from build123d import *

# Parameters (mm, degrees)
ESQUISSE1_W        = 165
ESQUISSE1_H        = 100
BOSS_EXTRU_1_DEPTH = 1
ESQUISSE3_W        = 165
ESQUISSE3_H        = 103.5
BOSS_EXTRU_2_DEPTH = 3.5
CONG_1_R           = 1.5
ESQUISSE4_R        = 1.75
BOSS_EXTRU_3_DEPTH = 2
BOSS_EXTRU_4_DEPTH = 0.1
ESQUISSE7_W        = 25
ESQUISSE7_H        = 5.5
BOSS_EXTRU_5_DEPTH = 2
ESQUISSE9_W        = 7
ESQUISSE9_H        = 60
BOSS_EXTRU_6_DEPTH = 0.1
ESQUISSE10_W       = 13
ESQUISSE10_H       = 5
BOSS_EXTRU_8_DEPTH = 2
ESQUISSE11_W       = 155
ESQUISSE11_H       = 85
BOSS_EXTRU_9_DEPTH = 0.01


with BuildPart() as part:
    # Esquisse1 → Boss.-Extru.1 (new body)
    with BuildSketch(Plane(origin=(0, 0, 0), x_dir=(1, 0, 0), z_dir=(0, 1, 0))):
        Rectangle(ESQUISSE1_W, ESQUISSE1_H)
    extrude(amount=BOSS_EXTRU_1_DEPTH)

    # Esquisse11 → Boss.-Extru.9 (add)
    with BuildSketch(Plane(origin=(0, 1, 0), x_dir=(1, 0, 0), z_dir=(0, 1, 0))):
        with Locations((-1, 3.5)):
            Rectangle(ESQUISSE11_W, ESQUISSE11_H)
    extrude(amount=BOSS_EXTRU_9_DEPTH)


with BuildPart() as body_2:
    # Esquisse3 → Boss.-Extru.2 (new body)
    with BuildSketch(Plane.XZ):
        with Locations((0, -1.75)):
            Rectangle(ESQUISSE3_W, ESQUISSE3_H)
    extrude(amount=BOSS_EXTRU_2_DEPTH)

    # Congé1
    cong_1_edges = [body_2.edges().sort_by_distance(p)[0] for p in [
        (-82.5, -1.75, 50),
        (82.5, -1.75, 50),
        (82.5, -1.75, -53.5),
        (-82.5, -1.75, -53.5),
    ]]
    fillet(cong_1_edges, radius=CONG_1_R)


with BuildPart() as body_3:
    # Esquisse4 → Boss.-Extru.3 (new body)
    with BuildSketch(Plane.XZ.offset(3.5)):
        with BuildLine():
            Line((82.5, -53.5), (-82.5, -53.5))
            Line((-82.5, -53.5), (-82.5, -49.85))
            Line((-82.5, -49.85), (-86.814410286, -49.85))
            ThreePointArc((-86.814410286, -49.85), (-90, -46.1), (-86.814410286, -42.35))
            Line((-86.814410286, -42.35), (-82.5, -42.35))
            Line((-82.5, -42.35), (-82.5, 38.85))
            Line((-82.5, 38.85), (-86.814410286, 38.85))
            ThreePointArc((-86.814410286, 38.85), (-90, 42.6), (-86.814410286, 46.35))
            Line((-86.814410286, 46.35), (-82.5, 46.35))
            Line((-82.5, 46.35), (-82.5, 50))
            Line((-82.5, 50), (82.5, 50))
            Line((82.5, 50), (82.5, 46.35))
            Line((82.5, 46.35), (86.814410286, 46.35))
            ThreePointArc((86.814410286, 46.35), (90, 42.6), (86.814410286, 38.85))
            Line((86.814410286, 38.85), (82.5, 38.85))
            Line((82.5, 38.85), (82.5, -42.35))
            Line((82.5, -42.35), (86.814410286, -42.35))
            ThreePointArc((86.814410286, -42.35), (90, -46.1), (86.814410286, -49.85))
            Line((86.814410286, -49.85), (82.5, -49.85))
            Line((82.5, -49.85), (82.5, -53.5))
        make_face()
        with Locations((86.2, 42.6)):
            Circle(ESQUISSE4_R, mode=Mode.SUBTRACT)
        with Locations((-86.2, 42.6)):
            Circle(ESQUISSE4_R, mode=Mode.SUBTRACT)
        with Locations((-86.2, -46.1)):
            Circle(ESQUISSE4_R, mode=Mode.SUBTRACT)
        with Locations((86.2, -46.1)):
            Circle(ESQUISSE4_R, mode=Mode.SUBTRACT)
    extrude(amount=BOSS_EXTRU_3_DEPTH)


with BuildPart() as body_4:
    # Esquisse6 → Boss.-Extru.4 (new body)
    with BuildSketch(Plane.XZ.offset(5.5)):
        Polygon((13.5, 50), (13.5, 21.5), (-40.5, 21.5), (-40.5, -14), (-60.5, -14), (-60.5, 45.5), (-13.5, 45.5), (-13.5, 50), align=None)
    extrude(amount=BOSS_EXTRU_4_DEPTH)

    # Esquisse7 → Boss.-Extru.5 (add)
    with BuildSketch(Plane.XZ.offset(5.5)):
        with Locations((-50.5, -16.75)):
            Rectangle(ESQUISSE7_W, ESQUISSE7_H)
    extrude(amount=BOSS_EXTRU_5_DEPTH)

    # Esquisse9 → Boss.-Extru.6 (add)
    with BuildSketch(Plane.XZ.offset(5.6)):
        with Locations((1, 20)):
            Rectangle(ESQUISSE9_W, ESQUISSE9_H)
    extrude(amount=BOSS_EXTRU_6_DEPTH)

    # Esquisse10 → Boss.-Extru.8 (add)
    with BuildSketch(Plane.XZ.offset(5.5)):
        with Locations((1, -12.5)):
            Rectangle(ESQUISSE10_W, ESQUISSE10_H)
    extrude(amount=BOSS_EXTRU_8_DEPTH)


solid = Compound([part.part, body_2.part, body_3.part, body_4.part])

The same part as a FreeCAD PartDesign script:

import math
import FreeCAD as App
import Part
import Sketcher
from FreeCAD import Vector
Q = App.Units.Quantity


def edges_at(feature, points):
    """Names of the edges that pass closest to the given points."""
    edges = feature.Shape.Edges
    near = lambda p: min(range(len(edges)), key=lambda i: edges[i].distToShape(Part.Vertex(*p))[0])
    return sorted({f"Edge{near(p) + 1}" for p in points})

doc = App.newDocument("Part")
body = doc.addObject("PartDesign::Body", "Body")

# Sketch on XZ plane
sketch1 = body.newObject("Sketcher::SketchObject", "Sketch")
sketch1.AttachmentSupport = (doc.getObject("XZ_Plane"), [""])
sketch1.MapMode = "FlatFace"
sketch1.addGeometry([
    Part.LineSegment(Vector(-82, -50, 0), Vector(-82, 50, 0)),
    Part.LineSegment(Vector(-82, 50, 0), Vector(82, 50, 0)),
    Part.LineSegment(Vector(82, 50, 0), Vector(82, -50, 0)),
    Part.LineSegment(Vector(82, -50, 0), Vector(-82, -50, 0)),
], False)
sketch1.addConstraint([
    Sketcher.Constraint("Coincident", 0, 2, 1, 1),
    Sketcher.Constraint("Coincident", 1, 2, 2, 1),
    Sketcher.Constraint("Coincident", 2, 2, 3, 1),
    Sketcher.Constraint("Coincident", 3, 2, 0, 1),
    Sketcher.Constraint("Vertical", 0),
    Sketcher.Constraint("Horizontal", 1),
    Sketcher.Constraint("Vertical", 2),
    Sketcher.Constraint("Horizontal", 3),
    Sketcher.Constraint("Symmetric", 0, 2, 2, 2, -1, 1),
    Sketcher.Constraint("DistanceX", 1, 1, 1, 2, Q("165 mm")),
    Sketcher.Constraint("DistanceY", 0, 1, 0, 2, Q("100 mm")),
])
pad1 = body.newObject("PartDesign::Pad", "Pad")
pad1.Profile = sketch1
pad1.Length = 1
pad1.Reversed = True

# Sketch on XZ plane
sketch2 = body.newObject("Sketcher::SketchObject", "Sketch001")
sketch2.AttachmentSupport = (doc.getObject("XZ_Plane"), [""])
sketch2.MapMode = "FlatFace"
sketch2.AttachmentOffset = App.Placement(Vector(0, 0, -1), App.Rotation())
sketch2.addGeometry([
    Part.LineSegment(Vector(-78, -46, 0), Vector(-78, 39, 0)),
    Part.LineSegment(Vector(-78, 39, 0), Vector(76, 39, 0)),
    Part.LineSegment(Vector(76, 39, 0), Vector(76, -46, 0)),
    Part.LineSegment(Vector(76, -46, 0), Vector(-78, -46, 0)),
], False)
sketch2.addConstraint([
    Sketcher.Constraint("Coincident", 0, 2, 1, 1),
    Sketcher.Constraint("Coincident", 1, 2, 2, 1),
    Sketcher.Constraint("Coincident", 2, 2, 3, 1),
    Sketcher.Constraint("Coincident", 3, 2, 0, 1),
    Sketcher.Constraint("Vertical", 0),
    Sketcher.Constraint("Horizontal", 1),
    Sketcher.Constraint("Vertical", 2),
    Sketcher.Constraint("Horizontal", 3),
    Sketcher.Constraint("DistanceX", 1, 1, 1, 2, Q("155 mm")),
    Sketcher.Constraint("DistanceY", 0, 1, 0, 2, Q("85 mm")),
    Sketcher.Constraint("DistanceY", -1, 1, 0, 2, Q("39 mm")),
    Sketcher.Constraint("DistanceX", 0, 2, -1, 1, Q("78.5 mm")),
])
pad2 = body.newObject("PartDesign::Pad", "Pad001")
pad2.Profile = sketch2
pad2.Length = 0.01
pad2.Reversed = True
body2 = doc.addObject("PartDesign::Body", "Body001")

# Sketch on XZ plane
sketch3 = body2.newObject("Sketcher::SketchObject", "Sketch002")
sketch3.AttachmentSupport = (doc.getObject("XZ_Plane001"), [""])
sketch3.MapMode = "FlatFace"
sketch3.addGeometry([
    Part.LineSegment(Vector(-82, 50, 0), Vector(-82, -54, 0)),
    Part.LineSegment(Vector(-82, -54, 0), Vector(82, -54, 0)),
    Part.LineSegment(Vector(82, -54, 0), Vector(82, 50, 0)),
    Part.LineSegment(Vector(82, 50, 0), Vector(-82, 50, 0)),
], False)
sketch3.addConstraint([
    Sketcher.Constraint("Coincident", 0, 2, 1, 1),
    Sketcher.Constraint("Coincident", 1, 2, 2, 1),
    Sketcher.Constraint("Coincident", 2, 2, 3, 1),
    Sketcher.Constraint("Coincident", 3, 2, 0, 1),
    Sketcher.Constraint("Vertical", 0),
    Sketcher.Constraint("Horizontal", 1),
    Sketcher.Constraint("Vertical", 2),
    Sketcher.Constraint("Horizontal", 3),
    Sketcher.Constraint("DistanceX", 1, 1, 1, 2, Q("165 mm")),
    Sketcher.Constraint("DistanceY", 0, 2, 0, 1, Q("103.5 mm")),
    Sketcher.Constraint("DistanceY", -1, 1, 2, 2, Q("50 mm")),
    Sketcher.Constraint("DistanceX", 0, 2, -1, 1, Q("82.5 mm")),
])
pad3 = body2.newObject("PartDesign::Pad", "Pad002")
pad3.Profile = sketch3
pad3.Length = 3.5
doc.recompute()

fillet = body2.newObject("PartDesign::Fillet", "Fillet")
fillet.Base = (pad3, edges_at(pad3, [
    (-82.5, -1.75, 50),
    (82.5, -1.75, 50),
    (82.5, -1.75, -53.5),
    (-82.5, -1.75, -53.5),
]))
fillet.Radius = 1.5
body3 = doc.addObject("PartDesign::Body", "Body002")

# Sketch on XZ plane
sketch4 = body3.newObject("Sketcher::SketchObject", "Sketch003")
sketch4.AttachmentSupport = (doc.getObject("XZ_Plane002"), [""])
sketch4.MapMode = "FlatFace"
sketch4.AttachmentOffset = App.Placement(Vector(0, 0, 3.5), App.Rotation())
sketch4.addGeometry([
    Part.LineSegment(Vector(-82.5, -53.5, 0), Vector(82.5, -53.5, 0)),  # 0
    Part.LineSegment(Vector(82.5, -53.5, 0), Vector(82.5, -49.9, 0)),  # 1
    Part.LineSegment(Vector(82.5, -49.9, 0), Vector(86.8, -49.9, 0)),  # 2
    Part.ArcOfCircle(Part.Circle(Vector(86.2, -46.1, 0), Vector(0, 0, 1), 3.8), math.radians(-81), math.radians(81)),  # 3
    Part.LineSegment(Vector(86.8, -42.4, 0), Vector(82.5, -42.4, 0)),  # 4
    Part.LineSegment(Vector(82.5, -42.4, 0), Vector(82.5, 38.9, 0)),  # 5
    Part.LineSegment(Vector(82.5, 38.9, 0), Vector(86.8, 38.9, 0)),  # 6
    Part.ArcOfCircle(Part.Circle(Vector(86.2, 42.6, 0), Vector(0, 0, 1), 3.8), math.radians(-81), math.radians(81)),  # 7
    Part.LineSegment(Vector(86.8, 46.4, 0), Vector(82.5, 46.4, 0)),  # 8
    Part.LineSegment(Vector(82.5, 46.4, 0), Vector(82.5, 50, 0)),  # 9
    Part.LineSegment(Vector(82.5, 50, 0), Vector(-82.5, 50, 0)),  # 10
    Part.LineSegment(Vector(-82.5, 50, 0), Vector(-82.5, 46.4, 0)),  # 11
    Part.LineSegment(Vector(-82.5, 46.4, 0), Vector(-86.8, 46.4, 0)),  # 12
    Part.ArcOfCircle(Part.Circle(Vector(-86.2, 42.6, 0), Vector(0, 0, 1), 3.8), math.radians(99), math.radians(261)),  # 13
    Part.LineSegment(Vector(-86.8, 38.9, 0), Vector(-82.5, 38.9, 0)),  # 14
    Part.LineSegment(Vector(-82.5, 38.9, 0), Vector(-82.5, -42.4, 0)),  # 15
    Part.LineSegment(Vector(-82.5, -42.4, 0), Vector(-86.8, -42.4, 0)),  # 16
    Part.ArcOfCircle(Part.Circle(Vector(-86.2, -46.1, 0), Vector(0, 0, 1), 3.8), math.radians(99), math.radians(261)),  # 17
    Part.LineSegment(Vector(-86.8, -49.9, 0), Vector(-82.5, -49.9, 0)),  # 18
    Part.LineSegment(Vector(-82.5, -49.9, 0), Vector(-82.5, -53.5, 0)),  # 19
    Part.Circle(Vector(86.2, -46.1, 0), Vector(0, 0, 1), 1.8),  # 20
    Part.Circle(Vector(-86.2, -46.1, 0), Vector(0, 0, 1), 1.8),  # 21
    Part.Circle(Vector(86.2, 42.6, 0), Vector(0, 0, 1), 1.8),  # 22
    Part.Circle(Vector(-86.2, 42.6, 0), Vector(0, 0, 1), 1.8),  # 23
], False)
sketch4.addConstraint([
    Sketcher.Constraint("Coincident", 0, 2, 1, 1),
    Sketcher.Constraint("Coincident", 1, 2, 2, 1),
    Sketcher.Constraint("Coincident", 2, 2, 3, 1),
    Sketcher.Constraint("Coincident", 3, 2, 4, 1),
    Sketcher.Constraint("Coincident", 4, 2, 5, 1),
    Sketcher.Constraint("Coincident", 5, 2, 6, 1),
    Sketcher.Constraint("Coincident", 6, 2, 7, 1),
    Sketcher.Constraint("Coincident", 7, 2, 8, 1),
    Sketcher.Constraint("Coincident", 8, 2, 9, 1),
    Sketcher.Constraint("Coincident", 9, 2, 10, 1),
    Sketcher.Constraint("Coincident", 10, 2, 11, 1),
    Sketcher.Constraint("Coincident", 11, 2, 12, 1),
    Sketcher.Constraint("Coincident", 12, 2, 13, 1),
    Sketcher.Constraint("Coincident", 13, 2, 14, 1),
    Sketcher.Constraint("Coincident", 14, 2, 15, 1),
    Sketcher.Constraint("Coincident", 15, 2, 16, 1),
    Sketcher.Constraint("Coincident", 16, 2, 17, 1),
    Sketcher.Constraint("Coincident", 17, 2, 18, 1),
    Sketcher.Constraint("Coincident", 18, 2, 19, 1),
    Sketcher.Constraint("Coincident", 19, 2, 0, 1),
    Sketcher.Constraint("Horizontal", 0),
    Sketcher.Constraint("Vertical", 1),
    Sketcher.Constraint("Horizontal", 2),
    Sketcher.Constraint("Horizontal", 4),
    Sketcher.Constraint("Vertical", 5),
    Sketcher.Constraint("Horizontal", 6),
    Sketcher.Constraint("Horizontal", 8),
    Sketcher.Constraint("Vertical", 9),
    Sketcher.Constraint("Horizontal", 10),
    Sketcher.Constraint("Vertical", 11),
    Sketcher.Constraint("Horizontal", 12),
    Sketcher.Constraint("Horizontal", 14),
    Sketcher.Constraint("Vertical", 15),
    Sketcher.Constraint("Horizontal", 16),
    Sketcher.Constraint("Horizontal", 18),
    Sketcher.Constraint("Vertical", 19),
    Sketcher.Constraint("Coincident", 20, 3, 3, 3),
    Sketcher.Constraint("Coincident", 21, 3, 17, 3),
    Sketcher.Constraint("Coincident", 22, 3, 7, 3),
    Sketcher.Constraint("Coincident", 23, 3, 13, 3),
    Sketcher.Constraint("Equal", 3, 7),
    Sketcher.Constraint("Equal", 7, 13),
    Sketcher.Constraint("Equal", 13, 17),
    Sketcher.Constraint("Equal", 20, 21),
    Sketcher.Constraint("Equal", 21, 22),
    Sketcher.Constraint("Equal", 22, 23),
    Sketcher.Constraint("Symmetric", 7, 3, 13, 3, -2),
    Sketcher.Constraint("Symmetric", 3, 3, 17, 3, -2),
    Sketcher.Constraint("Symmetric", 8, 2, 11, 2, -2),
    Sketcher.Constraint("Symmetric", 5, 2, 14, 2, -2),
    Sketcher.Constraint("Symmetric", 1, 2, 18, 2, -2),
    Sketcher.Constraint("Horizontal", 4, 2, 15, 2),
    Sketcher.Constraint("Vertical", 3, 3, 7, 3),
    Sketcher.Constraint("Vertical", 2, 2, 3, 2),
    Sketcher.Constraint("Vertical", 1, 2, 4, 2),
    Sketcher.Constraint("Vertical", 3, 2, 6, 2),
    Sketcher.Constraint("Vertical", 6, 2, 7, 2),
    Sketcher.Constraint("Vertical", 5, 2, 8, 2),
    Sketcher.Constraint("Equal", 1, 9),
    Sketcher.Constraint("Diameter", 20, Q("3.5 mm")),
    Sketcher.Constraint("Radius", 3, Q("3.8 mm")),
    Sketcher.Constraint("DistanceX", 0, 1, 0, 2, Q("165 mm")),
    Sketcher.Constraint("DistanceY", 5, 1, 5, 2, Q("81.2 mm")),
    Sketcher.Constraint("DistanceY", -1, 1, 9, 2, Q("50 mm")),
    Sketcher.Constraint("DistanceY", 1, 1, 1, 2, Q("3.65 mm")),
    Sketcher.Constraint("DistanceX", -1, 1, 3, 3, Q("86.2 mm")),
    Sketcher.Constraint("DistanceY", 3, 3, -1, 1, Q("46.1 mm")),
])
pad4 = body3.newObject("PartDesign::Pad", "Pad003")
pad4.Profile = sketch4
pad4.Length = 2
body4 = doc.addObject("PartDesign::Body", "Body003")

# Sketch on XZ plane
sketch5 = body4.newObject("Sketcher::SketchObject", "Sketch004")
sketch5.AttachmentSupport = (doc.getObject("XZ_Plane003"), [""])
sketch5.MapMode = "FlatFace"
sketch5.AttachmentOffset = App.Placement(Vector(0, 0, 5.5), App.Rotation())
sketch5.addGeometry([
    Part.LineSegment(Vector(13.5, 21.5, 0), Vector(13.5, 50, 0)),  # 0
    Part.LineSegment(Vector(13.5, 50, 0), Vector(-13.5, 50, 0)),  # 1
    Part.LineSegment(Vector(-13.5, 50, 0), Vector(-13.5, 45.5, 0)),  # 2
    Part.LineSegment(Vector(-13.5, 45.5, 0), Vector(-60.5, 45.5, 0)),  # 3
    Part.LineSegment(Vector(-60.5, 45.5, 0), Vector(-60.5, -14, 0)),  # 4
    Part.LineSegment(Vector(-60.5, -14, 0), Vector(-40.5, -14, 0)),  # 5
    Part.LineSegment(Vector(-40.5, -14, 0), Vector(-40.5, 21.5, 0)),  # 6
    Part.LineSegment(Vector(-40.5, 21.5, 0), Vector(13.5, 21.5, 0)),  # 7
], False)
sketch5.addConstraint([
    Sketcher.Constraint("Coincident", 0, 2, 1, 1),
    Sketcher.Constraint("Coincident", 1, 2, 2, 1),
    Sketcher.Constraint("Coincident", 2, 2, 3, 1),
    Sketcher.Constraint("Coincident", 3, 2, 4, 1),
    Sketcher.Constraint("Coincident", 4, 2, 5, 1),
    Sketcher.Constraint("Coincident", 5, 2, 6, 1),
    Sketcher.Constraint("Coincident", 6, 2, 7, 1),
    Sketcher.Constraint("Coincident", 7, 2, 0, 1),
    Sketcher.Constraint("Vertical", 0),
    Sketcher.Constraint("Horizontal", 1),
    Sketcher.Constraint("Vertical", 2),
    Sketcher.Constraint("Horizontal", 3),
    Sketcher.Constraint("Vertical", 4),
    Sketcher.Constraint("Horizontal", 5),
    Sketcher.Constraint("Vertical", 6),
    Sketcher.Constraint("Horizontal", 7),
    Sketcher.Constraint("DistanceX", 1, 2, 1, 1, Q("27 mm")),
    Sketcher.Constraint("DistanceX", 3, 2, 3, 1, Q("47 mm")),
    Sketcher.Constraint("DistanceX", 5, 1, 5, 2, Q("20 mm")),
    Sketcher.Constraint("DistanceY", 0, 1, 0, 2, Q("28.5 mm")),
    Sketcher.Constraint("DistanceY", 2, 2, 2, 1, Q("4.5 mm")),
    Sketcher.Constraint("DistanceY", 4, 2, 4, 1, Q("59.5 mm")),
    Sketcher.Constraint("DistanceY", -1, 1, 0, 2, Q("50 mm")),
    Sketcher.Constraint("DistanceX", -1, 1, 0, 2, Q("13.5 mm")),
])
pad5 = body4.newObject("PartDesign::Pad", "Pad004")
pad5.Profile = sketch5
pad5.Length = 0.1

# Sketch on XZ plane
sketch6 = body4.newObject("Sketcher::SketchObject", "Sketch005")
sketch6.AttachmentSupport = (doc.getObject("XZ_Plane003"), [""])
sketch6.MapMode = "FlatFace"
sketch6.AttachmentOffset = App.Placement(Vector(0, 0, 5.5), App.Rotation())
sketch6.addGeometry([
    Part.LineSegment(Vector(-63, -14, 0), Vector(-63, -20, 0)),
    Part.LineSegment(Vector(-63, -20, 0), Vector(-38, -20, 0)),
    Part.LineSegment(Vector(-38, -20, 0), Vector(-38, -14, 0)),
    Part.LineSegment(Vector(-38, -14, 0), Vector(-63, -14, 0)),
], False)
sketch6.addConstraint([
    Sketcher.Constraint("Coincident", 0, 2, 1, 1),
    Sketcher.Constraint("Coincident", 1, 2, 2, 1),
    Sketcher.Constraint("Coincident", 2, 2, 3, 1),
    Sketcher.Constraint("Coincident", 3, 2, 0, 1),
    Sketcher.Constraint("Vertical", 0),
    Sketcher.Constraint("Horizontal", 1),
    Sketcher.Constraint("Vertical", 2),
    Sketcher.Constraint("Horizontal", 3),
    Sketcher.Constraint("DistanceX", 1, 1, 1, 2, Q("25 mm")),
    Sketcher.Constraint("DistanceY", 0, 2, 0, 1, Q("5.5 mm")),
    Sketcher.Constraint("DistanceX", 0, 2, -1, 1, Q("63 mm")),
    Sketcher.Constraint("DistanceY", 2, 2, -1, 1, Q("14 mm")),
])
pad6 = body4.newObject("PartDesign::Pad", "Pad005")
pad6.Profile = sketch6
pad6.Length = 2

# Sketch on XZ plane
sketch7 = body4.newObject("Sketcher::SketchObject", "Sketch006")
sketch7.AttachmentSupport = (doc.getObject("XZ_Plane003"), [""])
sketch7.MapMode = "FlatFace"
sketch7.AttachmentOffset = App.Placement(Vector(0, 0, 5.6), App.Rotation())
sketch7.addGeometry([
    Part.LineSegment(Vector(-2, 50, 0), Vector(-2, -10, 0)),
    Part.LineSegment(Vector(-2, -10, 0), Vector(4, -10, 0)),
    Part.LineSegment(Vector(4, -10, 0), Vector(4, 50, 0)),
    Part.LineSegment(Vector(4, 50, 0), Vector(-2, 50, 0)),
], False)
sketch7.addConstraint([
    Sketcher.Constraint("Coincident", 0, 2, 1, 1),
    Sketcher.Constraint("Coincident", 1, 2, 2, 1),
    Sketcher.Constraint("Coincident", 2, 2, 3, 1),
    Sketcher.Constraint("Coincident", 3, 2, 0, 1),
    Sketcher.Constraint("Vertical", 0),
    Sketcher.Constraint("Horizontal", 1),
    Sketcher.Constraint("Vertical", 2),
    Sketcher.Constraint("Horizontal", 3),
    Sketcher.Constraint("DistanceX", 1, 1, 1, 2, Q("7 mm")),
    Sketcher.Constraint("DistanceY", 0, 2, 0, 1, Q("60 mm")),
    Sketcher.Constraint("DistanceY", 0, 2, -1, 1, Q("10 mm")),
    Sketcher.Constraint("DistanceX", 0, 2, -1, 1, Q("2.5 mm")),
])
pad7 = body4.newObject("PartDesign::Pad", "Pad006")
pad7.Profile = sketch7
pad7.Length = 0.1

# Sketch on XZ plane
sketch8 = body4.newObject("Sketcher::SketchObject", "Sketch007")
sketch8.AttachmentSupport = (doc.getObject("XZ_Plane003"), [""])
sketch8.MapMode = "FlatFace"
sketch8.AttachmentOffset = App.Placement(Vector(0, 0, 5.5), App.Rotation())
sketch8.addGeometry([
    Part.LineSegment(Vector(-6, -10, 0), Vector(-6, -15, 0)),
    Part.LineSegment(Vector(-6, -15, 0), Vector(8, -15, 0)),
    Part.LineSegment(Vector(8, -15, 0), Vector(8, -10, 0)),
    Part.LineSegment(Vector(8, -10, 0), Vector(-6, -10, 0)),
], False)
sketch8.addConstraint([
    Sketcher.Constraint("Coincident", 0, 2, 1, 1),
    Sketcher.Constraint("Coincident", 1, 2, 2, 1),
    Sketcher.Constraint("Coincident", 2, 2, 3, 1),
    Sketcher.Constraint("Coincident", 3, 2, 0, 1),
    Sketcher.Constraint("Vertical", 0),
    Sketcher.Constraint("Horizontal", 1),
    Sketcher.Constraint("Vertical", 2),
    Sketcher.Constraint("Horizontal", 3),
    Sketcher.Constraint("DistanceX", 1, 1, 1, 2, Q("13 mm")),
    Sketcher.Constraint("DistanceY", 0, 2, 0, 1, Q("5 mm")),
    Sketcher.Constraint("DistanceY", 0, 2, -1, 1, Q("15 mm")),
    Sketcher.Constraint("DistanceX", 0, 2, -1, 1, Q("5.5 mm")),
])
pad8 = body4.newObject("PartDesign::Pad", "Pad007")
pad8.Profile = sketch8
pad8.Length = 2

doc.recompute()
